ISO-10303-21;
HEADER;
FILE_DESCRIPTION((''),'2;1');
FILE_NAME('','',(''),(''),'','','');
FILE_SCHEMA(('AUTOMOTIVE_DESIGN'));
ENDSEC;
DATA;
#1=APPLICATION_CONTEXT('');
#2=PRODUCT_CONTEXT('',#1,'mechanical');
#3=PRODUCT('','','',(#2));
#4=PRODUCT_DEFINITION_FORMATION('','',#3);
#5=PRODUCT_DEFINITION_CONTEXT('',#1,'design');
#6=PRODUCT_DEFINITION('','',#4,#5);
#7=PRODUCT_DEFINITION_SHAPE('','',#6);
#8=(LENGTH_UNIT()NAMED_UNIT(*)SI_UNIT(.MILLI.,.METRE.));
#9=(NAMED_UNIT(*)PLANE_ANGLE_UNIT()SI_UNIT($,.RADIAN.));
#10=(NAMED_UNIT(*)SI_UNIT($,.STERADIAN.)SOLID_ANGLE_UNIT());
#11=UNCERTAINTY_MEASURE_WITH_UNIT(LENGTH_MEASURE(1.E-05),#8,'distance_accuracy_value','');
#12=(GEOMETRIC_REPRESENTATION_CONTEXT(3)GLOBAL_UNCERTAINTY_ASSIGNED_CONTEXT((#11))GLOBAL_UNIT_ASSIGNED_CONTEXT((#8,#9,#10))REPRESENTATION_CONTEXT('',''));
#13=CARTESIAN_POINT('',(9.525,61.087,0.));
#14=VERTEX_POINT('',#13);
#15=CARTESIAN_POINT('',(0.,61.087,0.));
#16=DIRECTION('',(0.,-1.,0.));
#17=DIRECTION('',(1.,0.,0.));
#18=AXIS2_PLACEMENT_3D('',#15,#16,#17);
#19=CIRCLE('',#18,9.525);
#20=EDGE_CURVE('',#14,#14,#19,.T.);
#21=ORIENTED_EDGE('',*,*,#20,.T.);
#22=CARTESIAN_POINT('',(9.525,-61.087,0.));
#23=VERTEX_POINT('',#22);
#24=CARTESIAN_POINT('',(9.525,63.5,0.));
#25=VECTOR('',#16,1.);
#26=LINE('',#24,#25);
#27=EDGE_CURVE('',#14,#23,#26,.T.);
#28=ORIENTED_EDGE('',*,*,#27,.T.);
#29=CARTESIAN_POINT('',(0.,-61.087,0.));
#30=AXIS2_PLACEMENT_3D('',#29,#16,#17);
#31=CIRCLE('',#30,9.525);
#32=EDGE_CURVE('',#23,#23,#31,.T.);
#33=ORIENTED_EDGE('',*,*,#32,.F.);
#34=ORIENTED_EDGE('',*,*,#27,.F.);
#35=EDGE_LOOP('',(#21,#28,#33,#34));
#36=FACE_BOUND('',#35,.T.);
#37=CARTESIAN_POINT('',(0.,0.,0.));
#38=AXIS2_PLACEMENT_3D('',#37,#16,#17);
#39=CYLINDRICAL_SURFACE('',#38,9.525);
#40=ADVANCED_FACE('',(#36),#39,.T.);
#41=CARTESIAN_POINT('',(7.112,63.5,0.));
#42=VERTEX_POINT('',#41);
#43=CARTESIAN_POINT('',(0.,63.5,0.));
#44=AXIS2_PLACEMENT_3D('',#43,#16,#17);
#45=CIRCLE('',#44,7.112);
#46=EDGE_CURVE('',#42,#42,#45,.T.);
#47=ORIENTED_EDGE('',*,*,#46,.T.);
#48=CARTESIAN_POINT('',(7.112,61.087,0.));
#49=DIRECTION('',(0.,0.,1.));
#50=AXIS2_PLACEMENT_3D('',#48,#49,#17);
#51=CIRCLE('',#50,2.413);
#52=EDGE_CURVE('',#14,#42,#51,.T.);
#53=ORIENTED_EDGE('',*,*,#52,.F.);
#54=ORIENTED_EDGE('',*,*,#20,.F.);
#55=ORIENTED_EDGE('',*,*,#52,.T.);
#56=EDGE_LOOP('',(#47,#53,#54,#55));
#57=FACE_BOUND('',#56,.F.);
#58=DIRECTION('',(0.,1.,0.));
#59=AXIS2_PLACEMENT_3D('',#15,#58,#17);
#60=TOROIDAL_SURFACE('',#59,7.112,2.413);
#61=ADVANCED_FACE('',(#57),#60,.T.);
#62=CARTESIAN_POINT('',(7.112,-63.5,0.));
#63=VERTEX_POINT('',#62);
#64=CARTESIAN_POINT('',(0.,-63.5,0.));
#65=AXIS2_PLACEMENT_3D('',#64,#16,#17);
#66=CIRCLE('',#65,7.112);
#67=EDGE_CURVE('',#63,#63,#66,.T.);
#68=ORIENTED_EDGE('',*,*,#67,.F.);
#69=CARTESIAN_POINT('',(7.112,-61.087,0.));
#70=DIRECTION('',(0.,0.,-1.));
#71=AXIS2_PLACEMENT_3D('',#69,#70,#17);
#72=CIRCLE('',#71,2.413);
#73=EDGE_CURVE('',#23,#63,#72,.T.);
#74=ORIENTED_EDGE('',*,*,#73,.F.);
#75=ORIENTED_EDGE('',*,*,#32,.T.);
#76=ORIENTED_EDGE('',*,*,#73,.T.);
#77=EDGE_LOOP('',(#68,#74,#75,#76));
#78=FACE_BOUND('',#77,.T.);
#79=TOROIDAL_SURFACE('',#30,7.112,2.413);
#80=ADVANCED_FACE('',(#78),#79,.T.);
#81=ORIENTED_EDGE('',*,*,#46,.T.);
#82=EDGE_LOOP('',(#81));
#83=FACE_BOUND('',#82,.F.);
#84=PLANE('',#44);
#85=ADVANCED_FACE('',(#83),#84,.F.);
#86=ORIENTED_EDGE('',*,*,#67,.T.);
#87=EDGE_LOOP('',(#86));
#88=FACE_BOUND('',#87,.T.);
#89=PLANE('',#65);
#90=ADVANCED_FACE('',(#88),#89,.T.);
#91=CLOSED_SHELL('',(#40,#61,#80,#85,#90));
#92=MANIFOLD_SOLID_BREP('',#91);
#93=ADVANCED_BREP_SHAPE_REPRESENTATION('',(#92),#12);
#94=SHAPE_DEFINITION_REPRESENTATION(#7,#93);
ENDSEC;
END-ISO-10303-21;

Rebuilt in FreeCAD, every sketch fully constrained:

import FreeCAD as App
import Part
import Sketcher

V = App.Vector
Q = App.Units.Quantity


def edges_at(feature, points):
    """Names of the edges that pass closest to the given points."""
    edges = feature.Shape.Edges
    near = lambda p: min(range(len(edges)), key=lambda i: edges[i].distToShape(Part.Vertex(*p))[0])
    return sorted({f"Edge{near(p) + 1}" for p in points})

doc = App.newDocument("Part")
body = doc.addObject("PartDesign::Body", "Body")

sketch1 = doc.addObject("Sketcher::SketchObject", "Sketch")
body.addObject(sketch1)
sketch1.AttachmentSupport = (doc.XZ_Plane, [""])
sketch1.MapMode = "FlatFace"
sketch1.addGeometry(Part.Circle(V(0, 0, 0), V(0, 0, 1), 10), False)
sketch1.addConstraint([
    Sketcher.Constraint("Coincident", 0, 3, -1, 1),
    Sketcher.Constraint("Diameter", 0, Q("0.75 in")),
])
pad1 = doc.addObject("PartDesign::Pad", "Pad")
body.addObject(pad1)
pad1.Profile = sketch1
pad1.Length = Q("5 in")
pad1.Midplane = True
doc.recompute()

fillet = doc.addObject("PartDesign::Fillet", "Fillet")
body.addObject(fillet)
fillet.Base = (pad1, edges_at(pad1, [(-9.525, -63.5, 0)]))
fillet.Radius = Q("0.095 in")
doc.recompute()

fillet2 = doc.addObject("PartDesign::Fillet", "Fillet001")
body.addObject(fillet2)
fillet2.Base = (fillet, edges_at(fillet, [(-9.525, 63.5, 0)]))
fillet2.Radius = Q("0.095 in")

doc.recompute()
